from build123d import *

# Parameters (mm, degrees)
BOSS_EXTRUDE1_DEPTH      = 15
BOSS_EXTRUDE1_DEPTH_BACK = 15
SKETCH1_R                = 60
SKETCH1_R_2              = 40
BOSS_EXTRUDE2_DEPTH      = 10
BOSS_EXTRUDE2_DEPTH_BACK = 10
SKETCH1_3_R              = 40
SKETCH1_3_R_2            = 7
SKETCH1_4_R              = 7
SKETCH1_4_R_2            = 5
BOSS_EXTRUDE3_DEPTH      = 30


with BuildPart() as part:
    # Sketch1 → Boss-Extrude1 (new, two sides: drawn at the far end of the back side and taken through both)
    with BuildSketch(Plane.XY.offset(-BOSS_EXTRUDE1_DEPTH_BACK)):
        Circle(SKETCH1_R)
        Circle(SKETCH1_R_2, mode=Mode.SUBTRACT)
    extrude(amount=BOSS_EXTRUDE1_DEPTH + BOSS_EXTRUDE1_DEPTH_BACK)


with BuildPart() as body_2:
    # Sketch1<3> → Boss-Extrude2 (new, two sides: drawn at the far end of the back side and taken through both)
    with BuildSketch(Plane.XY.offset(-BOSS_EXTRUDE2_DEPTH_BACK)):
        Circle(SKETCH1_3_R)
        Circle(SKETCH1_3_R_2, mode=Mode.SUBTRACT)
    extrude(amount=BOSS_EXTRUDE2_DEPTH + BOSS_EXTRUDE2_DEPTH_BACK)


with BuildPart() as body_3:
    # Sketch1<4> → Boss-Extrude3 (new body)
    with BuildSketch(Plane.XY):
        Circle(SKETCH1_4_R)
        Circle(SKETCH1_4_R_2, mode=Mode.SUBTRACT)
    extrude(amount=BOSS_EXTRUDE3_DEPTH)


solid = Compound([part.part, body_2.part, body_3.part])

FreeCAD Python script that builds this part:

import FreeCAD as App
import Part
import Sketcher
Q = App.Units.Quantity

doc = App.newDocument("Part")
body = doc.addObject("PartDesign::Body", "Body")

# Sketch on XY plane
sketch1 = body.newObject("Sketcher::SketchObject", "Sketch")
sketch1.AttachmentSupport = (doc.getObject("XY_Plane"), [""])
sketch1.MapMode = "FlatFace"
sketch1.addGeometry(Part.Circle(App.Vector(0, 0, 0), App.Vector(0, 0, 1), 60), False)
sketch1.addGeometry(Part.Circle(App.Vector(0, 0, 0), App.Vector(0, 0, 1), 40), False)
sketch1.addConstraint(Sketcher.Constraint("Coincident", 0, 3, -1, 1))
sketch1.addConstraint(Sketcher.Constraint("Coincident", 1, 3, -1, 1))
sketch1.addConstraint(Sketcher.Constraint("Diameter", 0, Q("120 mm")))
sketch1.addConstraint(Sketcher.Constraint("Diameter", 1, Q("80 mm")))
pad1 = body.newObject("PartDesign::Pad", "Pad")
pad1.Profile = sketch1
pad1.Type = "TwoLengths"
pad1.Length = 15
pad1.Length2 = 15
body2 = doc.addObject("PartDesign::Body", "Body001")

# Sketch on XY plane
sketch2 = body2.newObject("Sketcher::SketchObject", "Sketch001")
sketch2.AttachmentSupport = (doc.getObject("XY_Plane001"), [""])
sketch2.MapMode = "FlatFace"
sketch2.addGeometry(Part.Circle(App.Vector(0, 0, 0), App.Vector(0, 0, 1), 40), False)
sketch2.addGeometry(Part.Circle(App.Vector(0, 0, 0), App.Vector(0, 0, 1), 7), False)
sketch2.addConstraint(Sketcher.Constraint("Coincident", 0, 3, -1, 1))
sketch2.addConstraint(Sketcher.Constraint("Coincident", 1, 3, -1, 1))
sketch2.addConstraint(Sketcher.Constraint("Diameter", 0, Q("80 mm")))
sketch2.addConstraint(Sketcher.Constraint("Diameter", 1, Q("14 mm")))
pad2 = body2.newObject("PartDesign::Pad", "Pad001")
pad2.Profile = sketch2
pad2.Type = "TwoLengths"
pad2.Length = 10
pad2.Length2 = 10
body3 = doc.addObject("PartDesign::Body", "Body002")

# Sketch on XY plane
sketch3 = body3.newObject("Sketcher::SketchObject", "Sketch002")
sketch3.AttachmentSupport = (doc.getObject("XY_Plane002"), [""])
sketch3.MapMode = "FlatFace"
sketch3.addGeometry(Part.Circle(App.Vector(0, 0, 0), App.Vector(0, 0, 1), 7), False)
sketch3.addGeometry(Part.Circle(App.Vector(0, 0, 0), App.Vector(0, 0, 1), 5), False)
sketch3.addConstraint(Sketcher.Constraint("Coincident", 0, 3, -1, 1))
sketch3.addConstraint(Sketcher.Constraint("Coincident", 1, 3, -1, 1))
sketch3.addConstraint(Sketcher.Constraint("Diameter", 0, Q("14 mm")))
sketch3.addConstraint(Sketcher.Constraint("Diameter", 1, Q("10 mm")))
pad3 = body3.newObject("PartDesign::Pad", "Pad002")
pad3.Profile = sketch3
pad3.Length = 30

doc.recompute()
